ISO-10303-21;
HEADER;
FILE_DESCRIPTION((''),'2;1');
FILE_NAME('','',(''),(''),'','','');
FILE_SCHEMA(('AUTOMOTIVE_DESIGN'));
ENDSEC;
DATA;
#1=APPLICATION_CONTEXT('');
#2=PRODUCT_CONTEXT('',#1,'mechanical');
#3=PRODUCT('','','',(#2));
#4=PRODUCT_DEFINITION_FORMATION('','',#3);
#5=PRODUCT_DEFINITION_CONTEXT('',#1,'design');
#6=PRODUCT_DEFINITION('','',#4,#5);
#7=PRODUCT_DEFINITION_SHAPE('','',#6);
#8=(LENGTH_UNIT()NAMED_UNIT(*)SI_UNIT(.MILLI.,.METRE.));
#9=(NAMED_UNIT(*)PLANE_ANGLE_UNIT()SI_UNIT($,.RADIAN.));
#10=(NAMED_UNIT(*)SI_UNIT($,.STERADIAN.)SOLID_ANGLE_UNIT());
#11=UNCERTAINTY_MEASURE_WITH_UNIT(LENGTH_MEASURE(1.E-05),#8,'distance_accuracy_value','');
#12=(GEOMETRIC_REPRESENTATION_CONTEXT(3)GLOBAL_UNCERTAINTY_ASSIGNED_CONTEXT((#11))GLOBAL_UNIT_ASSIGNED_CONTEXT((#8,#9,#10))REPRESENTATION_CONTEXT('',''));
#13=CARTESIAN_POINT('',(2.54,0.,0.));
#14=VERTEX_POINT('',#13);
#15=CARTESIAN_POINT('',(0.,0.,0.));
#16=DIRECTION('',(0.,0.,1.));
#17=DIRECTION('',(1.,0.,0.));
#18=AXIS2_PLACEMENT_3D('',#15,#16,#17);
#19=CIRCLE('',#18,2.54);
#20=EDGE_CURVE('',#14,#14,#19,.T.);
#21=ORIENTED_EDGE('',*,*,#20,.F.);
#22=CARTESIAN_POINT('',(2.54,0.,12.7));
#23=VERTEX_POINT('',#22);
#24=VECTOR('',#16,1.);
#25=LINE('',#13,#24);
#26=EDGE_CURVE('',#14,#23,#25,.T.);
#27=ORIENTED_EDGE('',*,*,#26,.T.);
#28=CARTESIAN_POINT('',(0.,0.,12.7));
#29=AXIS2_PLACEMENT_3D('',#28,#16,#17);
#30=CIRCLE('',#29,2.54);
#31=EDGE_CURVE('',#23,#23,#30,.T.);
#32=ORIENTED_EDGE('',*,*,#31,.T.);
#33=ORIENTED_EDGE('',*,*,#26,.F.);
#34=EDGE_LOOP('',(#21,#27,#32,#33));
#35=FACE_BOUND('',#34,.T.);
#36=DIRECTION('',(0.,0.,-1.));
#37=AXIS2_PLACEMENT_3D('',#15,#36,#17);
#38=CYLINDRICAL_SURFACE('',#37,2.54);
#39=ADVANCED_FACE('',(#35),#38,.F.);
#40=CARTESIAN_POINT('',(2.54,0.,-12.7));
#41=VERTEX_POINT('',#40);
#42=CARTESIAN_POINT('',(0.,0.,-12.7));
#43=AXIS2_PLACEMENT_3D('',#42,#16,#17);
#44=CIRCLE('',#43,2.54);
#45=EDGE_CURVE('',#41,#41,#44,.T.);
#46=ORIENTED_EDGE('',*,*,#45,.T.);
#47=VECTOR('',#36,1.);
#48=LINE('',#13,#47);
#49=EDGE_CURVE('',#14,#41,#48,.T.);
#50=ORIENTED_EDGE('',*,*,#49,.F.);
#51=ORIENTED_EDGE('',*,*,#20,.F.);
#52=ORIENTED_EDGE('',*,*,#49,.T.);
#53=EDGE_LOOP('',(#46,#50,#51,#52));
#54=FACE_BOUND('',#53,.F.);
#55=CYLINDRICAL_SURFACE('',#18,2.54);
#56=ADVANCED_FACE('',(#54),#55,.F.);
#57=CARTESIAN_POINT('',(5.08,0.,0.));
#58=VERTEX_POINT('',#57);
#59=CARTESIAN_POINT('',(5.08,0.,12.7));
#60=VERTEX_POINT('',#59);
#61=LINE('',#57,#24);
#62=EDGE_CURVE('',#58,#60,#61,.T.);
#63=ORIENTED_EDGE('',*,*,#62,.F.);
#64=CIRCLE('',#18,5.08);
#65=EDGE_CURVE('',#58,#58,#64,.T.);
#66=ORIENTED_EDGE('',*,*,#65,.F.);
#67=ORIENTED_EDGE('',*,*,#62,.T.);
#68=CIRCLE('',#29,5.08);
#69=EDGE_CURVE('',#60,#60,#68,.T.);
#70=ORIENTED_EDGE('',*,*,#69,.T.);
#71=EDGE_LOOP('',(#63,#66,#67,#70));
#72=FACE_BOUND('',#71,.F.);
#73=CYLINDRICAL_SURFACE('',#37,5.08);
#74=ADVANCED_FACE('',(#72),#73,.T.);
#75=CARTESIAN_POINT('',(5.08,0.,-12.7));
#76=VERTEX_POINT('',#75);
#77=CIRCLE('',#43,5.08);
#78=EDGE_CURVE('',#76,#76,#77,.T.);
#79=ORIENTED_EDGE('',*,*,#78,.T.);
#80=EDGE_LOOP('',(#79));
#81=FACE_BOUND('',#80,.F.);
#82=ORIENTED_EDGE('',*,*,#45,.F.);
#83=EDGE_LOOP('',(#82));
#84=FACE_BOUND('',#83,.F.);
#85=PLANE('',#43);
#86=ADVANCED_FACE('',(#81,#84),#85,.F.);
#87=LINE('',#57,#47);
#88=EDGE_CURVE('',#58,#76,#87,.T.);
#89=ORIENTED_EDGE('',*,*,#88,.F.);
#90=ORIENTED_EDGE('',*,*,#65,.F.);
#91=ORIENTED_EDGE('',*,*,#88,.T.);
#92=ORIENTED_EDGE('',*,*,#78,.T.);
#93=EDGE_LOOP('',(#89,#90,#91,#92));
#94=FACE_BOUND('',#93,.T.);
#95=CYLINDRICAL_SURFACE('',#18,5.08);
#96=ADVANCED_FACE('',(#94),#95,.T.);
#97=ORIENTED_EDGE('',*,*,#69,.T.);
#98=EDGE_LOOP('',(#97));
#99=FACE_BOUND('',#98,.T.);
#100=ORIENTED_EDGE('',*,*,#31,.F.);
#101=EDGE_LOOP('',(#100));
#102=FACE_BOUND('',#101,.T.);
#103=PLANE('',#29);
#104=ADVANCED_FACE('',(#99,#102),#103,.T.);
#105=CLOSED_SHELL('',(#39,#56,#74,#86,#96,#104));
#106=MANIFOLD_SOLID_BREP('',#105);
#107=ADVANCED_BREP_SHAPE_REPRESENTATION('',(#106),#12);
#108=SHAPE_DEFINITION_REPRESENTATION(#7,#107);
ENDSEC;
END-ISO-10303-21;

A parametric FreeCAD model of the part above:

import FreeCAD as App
import Part
import Sketcher
from FreeCAD import Vector
Q = App.Units.Quantity

doc = App.newDocument("Part")
body = doc.addObject("PartDesign::Body", "Body")

sketch1 = body.newObject("Sketcher::SketchObject", "Sketch")
sketch1.AttachmentSupport = (doc.getObject("XY_Plane"), [""])
sketch1.MapMode = "FlatFace"
sketch1.addGeometry([
    Part.Circle(Vector(0, 0, 0), Vector(0, 0, 1), 5.08),
    Part.Circle(Vector(0, 0, 0), Vector(0, 0, 1), 2.54),
], False)
sketch1.addConstraint([
    Sketcher.Constraint("Coincident", 0, 3, -1, 1),
    Sketcher.Constraint("Coincident", 1, 3, -1, 1),
    Sketcher.Constraint("Diameter", 0, Q("0.4 in")),
    Sketcher.Constraint("Diameter", 1, Q("0.2 in")),
])
pad1 = body.newObject("PartDesign::Pad", "Pad")
pad1.Profile = sketch1
pad1.Length = Q("1 in")
pad1.Midplane = True

doc.recompute()
